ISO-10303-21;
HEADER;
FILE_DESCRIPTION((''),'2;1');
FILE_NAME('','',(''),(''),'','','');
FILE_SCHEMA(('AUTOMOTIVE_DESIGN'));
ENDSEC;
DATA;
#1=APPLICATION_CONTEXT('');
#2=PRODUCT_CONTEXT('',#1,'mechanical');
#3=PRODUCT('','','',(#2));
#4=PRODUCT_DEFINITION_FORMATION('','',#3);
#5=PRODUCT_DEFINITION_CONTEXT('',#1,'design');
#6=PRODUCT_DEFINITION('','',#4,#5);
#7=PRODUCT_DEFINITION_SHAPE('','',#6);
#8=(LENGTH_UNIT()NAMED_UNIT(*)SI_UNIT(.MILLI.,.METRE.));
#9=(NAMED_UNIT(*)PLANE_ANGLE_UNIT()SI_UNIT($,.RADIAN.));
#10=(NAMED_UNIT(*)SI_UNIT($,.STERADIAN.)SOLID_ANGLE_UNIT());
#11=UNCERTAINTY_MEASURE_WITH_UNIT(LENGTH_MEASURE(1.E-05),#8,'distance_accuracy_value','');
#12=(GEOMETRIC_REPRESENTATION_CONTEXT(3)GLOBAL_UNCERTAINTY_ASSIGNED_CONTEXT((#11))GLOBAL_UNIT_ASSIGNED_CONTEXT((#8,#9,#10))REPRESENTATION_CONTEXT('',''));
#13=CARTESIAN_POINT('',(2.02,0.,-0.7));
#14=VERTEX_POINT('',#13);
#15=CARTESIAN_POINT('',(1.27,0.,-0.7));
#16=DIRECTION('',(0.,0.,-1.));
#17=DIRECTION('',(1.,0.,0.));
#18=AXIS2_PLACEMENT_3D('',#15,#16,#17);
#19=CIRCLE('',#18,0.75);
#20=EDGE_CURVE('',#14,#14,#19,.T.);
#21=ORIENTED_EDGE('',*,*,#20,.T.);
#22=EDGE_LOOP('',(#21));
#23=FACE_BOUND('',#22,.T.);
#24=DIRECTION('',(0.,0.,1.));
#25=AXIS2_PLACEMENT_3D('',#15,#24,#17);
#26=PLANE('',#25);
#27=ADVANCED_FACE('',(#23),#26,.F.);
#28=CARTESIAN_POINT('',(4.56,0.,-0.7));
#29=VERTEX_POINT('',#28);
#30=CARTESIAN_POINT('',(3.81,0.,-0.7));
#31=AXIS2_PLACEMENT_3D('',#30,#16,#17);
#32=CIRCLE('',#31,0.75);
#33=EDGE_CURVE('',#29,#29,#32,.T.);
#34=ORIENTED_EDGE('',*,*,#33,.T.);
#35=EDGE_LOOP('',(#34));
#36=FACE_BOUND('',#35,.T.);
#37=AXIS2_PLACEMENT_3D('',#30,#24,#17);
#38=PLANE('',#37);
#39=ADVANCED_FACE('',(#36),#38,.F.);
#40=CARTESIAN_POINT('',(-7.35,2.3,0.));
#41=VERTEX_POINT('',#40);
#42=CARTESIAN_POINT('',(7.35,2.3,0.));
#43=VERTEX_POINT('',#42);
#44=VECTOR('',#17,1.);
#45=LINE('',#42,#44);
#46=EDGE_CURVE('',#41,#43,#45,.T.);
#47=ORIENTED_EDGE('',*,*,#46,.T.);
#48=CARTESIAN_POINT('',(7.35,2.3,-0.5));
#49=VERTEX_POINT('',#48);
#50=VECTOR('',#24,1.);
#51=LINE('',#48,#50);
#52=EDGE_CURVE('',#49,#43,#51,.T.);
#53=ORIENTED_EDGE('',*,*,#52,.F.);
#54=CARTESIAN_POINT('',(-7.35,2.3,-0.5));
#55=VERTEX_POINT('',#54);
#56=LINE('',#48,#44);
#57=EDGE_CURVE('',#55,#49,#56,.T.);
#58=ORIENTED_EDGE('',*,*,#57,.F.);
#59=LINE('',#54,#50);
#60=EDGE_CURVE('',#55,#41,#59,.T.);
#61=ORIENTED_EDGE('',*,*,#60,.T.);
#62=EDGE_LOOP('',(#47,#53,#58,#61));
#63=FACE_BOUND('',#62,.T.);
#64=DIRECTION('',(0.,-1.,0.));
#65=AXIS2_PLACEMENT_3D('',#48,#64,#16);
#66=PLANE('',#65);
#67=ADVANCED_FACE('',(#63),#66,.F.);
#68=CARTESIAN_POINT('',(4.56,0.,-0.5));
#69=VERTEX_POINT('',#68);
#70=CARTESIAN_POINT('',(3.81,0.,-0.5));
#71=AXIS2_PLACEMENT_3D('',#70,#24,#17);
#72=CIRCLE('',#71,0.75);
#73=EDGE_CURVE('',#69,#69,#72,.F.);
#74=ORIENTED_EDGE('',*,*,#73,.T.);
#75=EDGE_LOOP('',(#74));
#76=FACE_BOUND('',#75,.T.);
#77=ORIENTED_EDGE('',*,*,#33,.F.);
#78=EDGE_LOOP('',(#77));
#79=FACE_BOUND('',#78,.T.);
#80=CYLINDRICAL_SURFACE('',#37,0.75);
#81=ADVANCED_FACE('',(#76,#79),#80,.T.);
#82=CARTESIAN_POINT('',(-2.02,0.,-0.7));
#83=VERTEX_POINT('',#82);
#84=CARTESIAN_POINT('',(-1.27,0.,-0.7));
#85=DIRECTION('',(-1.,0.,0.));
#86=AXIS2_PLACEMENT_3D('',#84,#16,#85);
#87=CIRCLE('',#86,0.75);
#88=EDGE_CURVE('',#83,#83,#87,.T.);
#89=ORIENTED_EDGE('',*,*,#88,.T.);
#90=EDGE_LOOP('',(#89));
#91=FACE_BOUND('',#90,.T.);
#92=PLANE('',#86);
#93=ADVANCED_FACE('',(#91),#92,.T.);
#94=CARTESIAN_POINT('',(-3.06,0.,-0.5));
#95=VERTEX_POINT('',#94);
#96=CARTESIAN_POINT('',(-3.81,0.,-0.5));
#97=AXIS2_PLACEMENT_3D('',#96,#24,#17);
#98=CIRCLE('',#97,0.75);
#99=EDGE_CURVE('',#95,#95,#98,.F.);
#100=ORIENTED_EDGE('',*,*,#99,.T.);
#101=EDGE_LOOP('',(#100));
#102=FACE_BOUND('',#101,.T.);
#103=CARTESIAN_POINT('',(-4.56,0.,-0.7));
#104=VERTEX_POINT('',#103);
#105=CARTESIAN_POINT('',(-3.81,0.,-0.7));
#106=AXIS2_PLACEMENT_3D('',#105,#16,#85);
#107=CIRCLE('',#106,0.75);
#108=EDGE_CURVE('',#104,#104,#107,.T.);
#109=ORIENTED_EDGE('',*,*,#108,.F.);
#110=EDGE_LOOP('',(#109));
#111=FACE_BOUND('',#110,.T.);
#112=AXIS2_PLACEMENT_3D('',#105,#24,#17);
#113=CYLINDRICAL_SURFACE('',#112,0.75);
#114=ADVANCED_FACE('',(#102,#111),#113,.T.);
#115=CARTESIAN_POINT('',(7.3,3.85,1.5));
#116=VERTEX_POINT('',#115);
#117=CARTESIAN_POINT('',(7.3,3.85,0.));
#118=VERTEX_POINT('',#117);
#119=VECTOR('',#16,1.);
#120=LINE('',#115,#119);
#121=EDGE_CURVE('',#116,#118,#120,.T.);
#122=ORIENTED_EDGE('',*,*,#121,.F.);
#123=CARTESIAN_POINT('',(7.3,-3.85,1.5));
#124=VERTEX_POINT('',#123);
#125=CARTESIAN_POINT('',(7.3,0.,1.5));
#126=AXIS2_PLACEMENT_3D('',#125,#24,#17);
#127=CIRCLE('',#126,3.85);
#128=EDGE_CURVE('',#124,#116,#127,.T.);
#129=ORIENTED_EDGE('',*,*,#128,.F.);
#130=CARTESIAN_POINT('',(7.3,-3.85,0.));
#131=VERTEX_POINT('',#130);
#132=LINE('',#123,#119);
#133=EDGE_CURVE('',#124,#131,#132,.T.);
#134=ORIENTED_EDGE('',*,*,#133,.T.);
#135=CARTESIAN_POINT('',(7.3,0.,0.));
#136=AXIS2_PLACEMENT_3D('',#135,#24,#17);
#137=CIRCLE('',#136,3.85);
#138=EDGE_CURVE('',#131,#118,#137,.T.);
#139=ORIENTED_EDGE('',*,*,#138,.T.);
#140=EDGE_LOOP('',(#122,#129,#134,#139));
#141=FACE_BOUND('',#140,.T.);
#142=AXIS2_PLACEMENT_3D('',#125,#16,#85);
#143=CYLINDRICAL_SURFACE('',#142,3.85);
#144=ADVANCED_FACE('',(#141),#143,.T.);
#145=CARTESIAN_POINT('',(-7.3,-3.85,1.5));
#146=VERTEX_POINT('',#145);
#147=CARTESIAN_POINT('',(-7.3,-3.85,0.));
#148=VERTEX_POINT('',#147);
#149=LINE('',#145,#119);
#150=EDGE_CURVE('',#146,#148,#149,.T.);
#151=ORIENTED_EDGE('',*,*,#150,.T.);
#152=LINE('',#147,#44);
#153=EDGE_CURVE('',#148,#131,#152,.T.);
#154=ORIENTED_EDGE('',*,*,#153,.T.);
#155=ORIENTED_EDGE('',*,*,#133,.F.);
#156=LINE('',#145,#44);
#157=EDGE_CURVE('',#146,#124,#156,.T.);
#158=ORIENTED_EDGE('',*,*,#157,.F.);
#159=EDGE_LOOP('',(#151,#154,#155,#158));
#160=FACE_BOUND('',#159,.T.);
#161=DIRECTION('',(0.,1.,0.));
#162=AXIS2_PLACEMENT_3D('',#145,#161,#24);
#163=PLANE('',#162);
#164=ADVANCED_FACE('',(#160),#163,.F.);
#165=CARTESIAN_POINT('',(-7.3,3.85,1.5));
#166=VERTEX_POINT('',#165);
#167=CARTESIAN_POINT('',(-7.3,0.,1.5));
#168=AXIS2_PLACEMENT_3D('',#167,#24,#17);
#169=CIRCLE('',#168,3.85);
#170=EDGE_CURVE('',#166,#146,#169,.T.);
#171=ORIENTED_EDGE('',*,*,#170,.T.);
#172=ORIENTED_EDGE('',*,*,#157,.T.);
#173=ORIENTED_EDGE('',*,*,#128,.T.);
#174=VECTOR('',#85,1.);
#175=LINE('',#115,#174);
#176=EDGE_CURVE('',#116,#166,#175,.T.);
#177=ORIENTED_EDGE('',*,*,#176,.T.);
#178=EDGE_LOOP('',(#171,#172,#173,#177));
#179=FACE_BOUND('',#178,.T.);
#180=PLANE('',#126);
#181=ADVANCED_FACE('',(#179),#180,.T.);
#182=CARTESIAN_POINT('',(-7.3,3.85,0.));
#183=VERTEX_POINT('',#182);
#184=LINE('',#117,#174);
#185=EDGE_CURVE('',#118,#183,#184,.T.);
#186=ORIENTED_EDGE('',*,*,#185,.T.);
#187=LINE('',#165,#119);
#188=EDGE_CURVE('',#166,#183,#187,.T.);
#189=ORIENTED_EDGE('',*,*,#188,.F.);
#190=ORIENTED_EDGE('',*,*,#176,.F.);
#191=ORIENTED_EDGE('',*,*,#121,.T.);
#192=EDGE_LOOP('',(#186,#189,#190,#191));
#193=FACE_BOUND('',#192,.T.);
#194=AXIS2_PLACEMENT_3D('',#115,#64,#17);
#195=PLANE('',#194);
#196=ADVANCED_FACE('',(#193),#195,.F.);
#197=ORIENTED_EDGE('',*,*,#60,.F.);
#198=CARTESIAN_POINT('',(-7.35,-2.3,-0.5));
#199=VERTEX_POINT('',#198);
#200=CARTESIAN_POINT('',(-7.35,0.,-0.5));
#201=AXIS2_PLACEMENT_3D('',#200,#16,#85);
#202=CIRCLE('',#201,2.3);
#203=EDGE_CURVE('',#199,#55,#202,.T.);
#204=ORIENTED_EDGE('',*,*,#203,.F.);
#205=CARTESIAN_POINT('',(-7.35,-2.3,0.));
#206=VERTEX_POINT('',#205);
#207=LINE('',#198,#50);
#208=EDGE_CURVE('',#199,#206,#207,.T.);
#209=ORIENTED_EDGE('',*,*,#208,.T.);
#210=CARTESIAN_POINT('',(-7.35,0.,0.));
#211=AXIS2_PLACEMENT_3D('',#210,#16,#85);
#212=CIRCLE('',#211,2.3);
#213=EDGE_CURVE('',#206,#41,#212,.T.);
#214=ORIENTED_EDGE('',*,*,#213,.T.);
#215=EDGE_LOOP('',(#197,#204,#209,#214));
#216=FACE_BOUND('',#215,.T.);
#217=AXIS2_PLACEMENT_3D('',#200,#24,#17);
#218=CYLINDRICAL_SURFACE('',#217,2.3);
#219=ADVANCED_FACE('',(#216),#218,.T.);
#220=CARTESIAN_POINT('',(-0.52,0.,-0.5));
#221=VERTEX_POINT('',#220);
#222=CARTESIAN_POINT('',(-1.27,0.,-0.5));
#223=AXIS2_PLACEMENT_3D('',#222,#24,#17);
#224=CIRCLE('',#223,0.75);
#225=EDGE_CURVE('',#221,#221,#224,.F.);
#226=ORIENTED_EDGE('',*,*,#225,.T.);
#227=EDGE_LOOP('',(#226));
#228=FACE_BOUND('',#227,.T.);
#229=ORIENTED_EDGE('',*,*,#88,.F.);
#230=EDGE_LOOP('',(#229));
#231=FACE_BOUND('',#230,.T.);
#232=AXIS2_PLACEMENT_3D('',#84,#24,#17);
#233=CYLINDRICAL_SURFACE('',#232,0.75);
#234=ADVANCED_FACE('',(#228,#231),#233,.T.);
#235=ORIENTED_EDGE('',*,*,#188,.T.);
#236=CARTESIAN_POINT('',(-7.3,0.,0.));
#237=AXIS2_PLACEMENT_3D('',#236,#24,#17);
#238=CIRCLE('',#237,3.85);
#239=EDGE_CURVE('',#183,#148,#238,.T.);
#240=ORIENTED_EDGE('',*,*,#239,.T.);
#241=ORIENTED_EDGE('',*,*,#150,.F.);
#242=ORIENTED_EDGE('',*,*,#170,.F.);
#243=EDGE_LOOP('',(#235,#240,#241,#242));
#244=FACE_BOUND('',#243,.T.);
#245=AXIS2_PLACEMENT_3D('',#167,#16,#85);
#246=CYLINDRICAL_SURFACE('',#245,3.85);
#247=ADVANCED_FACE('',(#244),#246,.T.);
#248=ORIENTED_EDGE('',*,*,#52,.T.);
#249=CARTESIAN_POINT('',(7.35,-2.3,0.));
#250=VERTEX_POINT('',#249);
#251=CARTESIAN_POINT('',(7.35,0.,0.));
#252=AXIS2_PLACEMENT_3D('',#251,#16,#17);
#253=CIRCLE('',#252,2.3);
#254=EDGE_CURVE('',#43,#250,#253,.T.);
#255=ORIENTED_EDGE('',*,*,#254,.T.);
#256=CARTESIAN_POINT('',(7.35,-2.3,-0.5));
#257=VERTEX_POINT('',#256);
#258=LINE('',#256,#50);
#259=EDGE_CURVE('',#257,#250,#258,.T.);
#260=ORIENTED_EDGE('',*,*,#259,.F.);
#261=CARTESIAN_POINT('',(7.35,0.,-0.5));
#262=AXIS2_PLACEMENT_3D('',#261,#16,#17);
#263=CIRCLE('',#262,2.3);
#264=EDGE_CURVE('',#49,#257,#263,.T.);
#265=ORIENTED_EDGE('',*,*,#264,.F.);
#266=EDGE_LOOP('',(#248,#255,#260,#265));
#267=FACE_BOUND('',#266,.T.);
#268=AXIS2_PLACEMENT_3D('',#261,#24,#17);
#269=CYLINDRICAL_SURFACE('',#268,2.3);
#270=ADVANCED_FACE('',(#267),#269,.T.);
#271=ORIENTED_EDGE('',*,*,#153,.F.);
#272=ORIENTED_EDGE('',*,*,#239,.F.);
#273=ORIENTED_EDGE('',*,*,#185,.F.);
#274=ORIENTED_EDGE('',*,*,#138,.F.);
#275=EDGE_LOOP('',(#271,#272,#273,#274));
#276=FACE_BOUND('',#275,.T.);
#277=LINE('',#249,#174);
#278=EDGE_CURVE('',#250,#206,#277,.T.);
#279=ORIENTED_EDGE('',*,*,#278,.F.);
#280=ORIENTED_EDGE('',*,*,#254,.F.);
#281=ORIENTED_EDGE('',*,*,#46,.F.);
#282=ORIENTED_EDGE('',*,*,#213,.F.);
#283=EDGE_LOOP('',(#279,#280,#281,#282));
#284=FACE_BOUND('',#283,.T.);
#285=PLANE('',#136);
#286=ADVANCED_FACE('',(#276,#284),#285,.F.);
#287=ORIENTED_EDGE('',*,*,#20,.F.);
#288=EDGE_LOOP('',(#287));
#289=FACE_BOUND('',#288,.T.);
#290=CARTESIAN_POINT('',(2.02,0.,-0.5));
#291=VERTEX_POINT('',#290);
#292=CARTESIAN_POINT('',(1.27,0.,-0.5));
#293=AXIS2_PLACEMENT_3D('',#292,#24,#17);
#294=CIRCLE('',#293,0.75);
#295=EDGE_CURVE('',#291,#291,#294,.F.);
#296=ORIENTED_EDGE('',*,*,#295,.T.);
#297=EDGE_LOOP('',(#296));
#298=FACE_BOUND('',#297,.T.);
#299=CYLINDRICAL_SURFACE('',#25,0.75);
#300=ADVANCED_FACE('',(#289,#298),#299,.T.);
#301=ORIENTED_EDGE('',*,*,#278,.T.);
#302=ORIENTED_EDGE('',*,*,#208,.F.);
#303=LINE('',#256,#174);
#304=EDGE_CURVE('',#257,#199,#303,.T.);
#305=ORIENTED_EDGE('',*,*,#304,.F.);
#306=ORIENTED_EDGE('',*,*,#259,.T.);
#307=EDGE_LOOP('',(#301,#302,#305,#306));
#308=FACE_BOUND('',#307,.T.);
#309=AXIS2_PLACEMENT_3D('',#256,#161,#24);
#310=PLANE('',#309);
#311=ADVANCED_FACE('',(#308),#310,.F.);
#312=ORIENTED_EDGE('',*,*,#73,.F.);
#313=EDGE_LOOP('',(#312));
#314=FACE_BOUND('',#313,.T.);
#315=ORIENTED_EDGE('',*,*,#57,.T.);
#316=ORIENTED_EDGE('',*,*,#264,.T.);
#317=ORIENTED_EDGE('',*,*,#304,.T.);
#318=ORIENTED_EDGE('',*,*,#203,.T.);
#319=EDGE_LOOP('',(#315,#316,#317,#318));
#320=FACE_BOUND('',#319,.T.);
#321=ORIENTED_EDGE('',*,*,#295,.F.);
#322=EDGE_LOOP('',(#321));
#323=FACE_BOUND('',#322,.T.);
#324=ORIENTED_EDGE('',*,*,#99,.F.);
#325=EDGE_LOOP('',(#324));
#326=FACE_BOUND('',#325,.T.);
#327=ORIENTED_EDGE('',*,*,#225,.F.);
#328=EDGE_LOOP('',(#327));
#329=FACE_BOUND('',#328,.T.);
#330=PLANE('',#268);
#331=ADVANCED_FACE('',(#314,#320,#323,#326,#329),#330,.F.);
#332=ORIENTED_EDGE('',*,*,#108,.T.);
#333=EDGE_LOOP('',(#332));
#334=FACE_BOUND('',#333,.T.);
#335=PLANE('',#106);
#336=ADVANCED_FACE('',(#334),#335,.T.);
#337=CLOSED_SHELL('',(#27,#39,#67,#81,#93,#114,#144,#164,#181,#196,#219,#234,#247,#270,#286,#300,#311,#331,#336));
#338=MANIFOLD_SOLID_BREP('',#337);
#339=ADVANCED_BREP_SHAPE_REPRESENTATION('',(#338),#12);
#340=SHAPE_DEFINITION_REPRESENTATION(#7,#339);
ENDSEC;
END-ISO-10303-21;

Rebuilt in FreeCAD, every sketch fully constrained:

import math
import FreeCAD as App
import Part
import Sketcher
Q = App.Units.Quantity

doc = App.newDocument("Part")
params = doc.addObject("Spreadsheet::Sheet", "Params")
for row, (alias, value) in enumerate([
    ("sketch1_radius", "3.85 mm"),
    ("sketch1_width", "14.6 mm"),
    ("pad1_length", "1.5 mm"),
    ("sketch2_radius", "2.3 mm"),
    ("sketch2_width", "14.7 mm"),
    ("pad2_length", "0.5 mm"),
    ("sketch3_diameter", "1.5 mm"),
    ("pad3_length", "0.2 mm"),
], start=1):
    params.set(f"A{row}", alias)
    params.set(f"B{row}", "=" + value)
    params.setAlias(f"B{row}", alias)

body = doc.addObject("PartDesign::Body", "Body")

sketch1 = body.newObject("Sketcher::SketchObject", "Sketch")
sketch1.AttachmentSupport = (doc.getObject("XY_Plane"), [""])
sketch1.MapMode = "FlatFace"
sketch1.addGeometry(Part.LineSegment(App.Vector(7.3, 3.9, 0), App.Vector(-7.3, 3.9, 0)), False)
sketch1.addGeometry(Part.ArcOfCircle(Part.Circle(App.Vector(-7.3, 0, 0), App.Vector(0, 0, 1), 3.9), math.radians(90), math.radians(270)), False)
sketch1.addGeometry(Part.LineSegment(App.Vector(-7.3, -3.9, 0), App.Vector(7.3, -3.9, 0)), False)
sketch1.addGeometry(Part.ArcOfCircle(Part.Circle(App.Vector(7.3, 0, 0), App.Vector(0, 0, 1), 3.9), math.radians(-90), math.radians(90)), False)
sketch1.addConstraint(Sketcher.Constraint("Tangent", 0, 2, 1, 1))
sketch1.addConstraint(Sketcher.Constraint("Tangent", 1, 2, 2, 1))
sketch1.addConstraint(Sketcher.Constraint("Tangent", 2, 2, 3, 1))
sketch1.addConstraint(Sketcher.Constraint("Tangent", 3, 2, 0, 1))
sketch1.addConstraint(Sketcher.Constraint("Horizontal", 0))
sketch1.addConstraint(Sketcher.Constraint("Horizontal", 2))
sketch1.addConstraint(Sketcher.Constraint("Symmetric", 1, 3, 3, 3, -1, 1))
sketch1.addConstraint(Sketcher.Constraint("Radius", 1, Q("3.85 mm")))
sketch1.addConstraint(Sketcher.Constraint("DistanceX", 0, 2, 0, 1, Q("14.6 mm")))
sketch1.setExpression("Constraints[7]", "Params.sketch1_radius")
sketch1.setExpression("Constraints[8]", "Params.sketch1_width")
pad1 = body.newObject("PartDesign::Pad", "Pad")
pad1.Profile = sketch1
pad1.setExpression("Length", "Params.pad1_length")

sketch2 = body.newObject("Sketcher::SketchObject", "Sketch001")
sketch2.AttachmentSupport = (doc.getObject("XY_Plane"), [""])
sketch2.MapMode = "FlatFace"
sketch2.addGeometry(Part.LineSegment(App.Vector(-7.3, 2.3, 0), App.Vector(7.3, 2.3, 0)), False)
sketch2.addGeometry(Part.ArcOfCircle(Part.Circle(App.Vector(7.3, 0, 0), App.Vector(0, 0, 1), 2.3), math.radians(-90), math.radians(90)), False)
sketch2.addGeometry(Part.LineSegment(App.Vector(7.3, -2.3, 0), App.Vector(-7.3, -2.3, 0)), False)
sketch2.addGeometry(Part.ArcOfCircle(Part.Circle(App.Vector(-7.3, 0, 0), App.Vector(0, 0, 1), 2.3), math.radians(90), math.radians(270)), False)
sketch2.addConstraint(Sketcher.Constraint("Tangent", 0, 2, 1, 2))
sketch2.addConstraint(Sketcher.Constraint("Tangent", 1, 1, 2, 1))
sketch2.addConstraint(Sketcher.Constraint("Tangent", 2, 2, 3, 2))
sketch2.addConstraint(Sketcher.Constraint("Tangent", 3, 1, 0, 1))
sketch2.addConstraint(Sketcher.Constraint("Horizontal", 0))
sketch2.addConstraint(Sketcher.Constraint("Horizontal", 2))
sketch2.addConstraint(Sketcher.Constraint("Symmetric", 1, 3, 3, 3, -1, 1))
sketch2.addConstraint(Sketcher.Constraint("Radius", 1, Q("2.3 mm")))
sketch2.addConstraint(Sketcher.Constraint("DistanceX", 0, 1, 0, 2, Q("14.7 mm")))
sketch2.setExpression("Constraints[7]", "Params.sketch2_radius")
sketch2.setExpression("Constraints[8]", "Params.sketch2_width")
pad2 = body.newObject("PartDesign::Pad", "Pad001")
pad2.Profile = sketch2
pad2.setExpression("Length", "Params.pad2_length")
pad2.Reversed = True

sketch3 = body.newObject("Sketcher::SketchObject", "Sketch002")
sketch3.AttachmentSupport = (doc.getObject("XY_Plane"), [""])
sketch3.MapMode = "FlatFace"
sketch3.AttachmentOffset = App.Placement(App.Vector(0, 0, -0.5), App.Rotation())
sketch3.addGeometry(Part.Circle(App.Vector(-1.3, 0, 0), App.Vector(0, 0, 1), 0.8), False)
sketch3.addGeometry(Part.Circle(App.Vector(-3.8, 0, 0), App.Vector(0, 0, 1), 0.8), False)
sketch3.addGeometry(Part.Circle(App.Vector(3.8, 0, 0), App.Vector(0, 0, 1), 0.8), False)
sketch3.addGeometry(Part.Circle(App.Vector(1.3, 0, 0), App.Vector(0, 0, 1), 0.8), False)
sketch3.addConstraint(Sketcher.Constraint("Equal", 0, 1))
sketch3.addConstraint(Sketcher.Constraint("Equal", 1, 2))
sketch3.addConstraint(Sketcher.Constraint("Equal", 2, 3))
sketch3.addConstraint(Sketcher.Constraint("Symmetric", 1, 3, 2, 3, -1, 1))
sketch3.addConstraint(Sketcher.Constraint("Symmetric", 0, 3, 3, 3, -1, 1))
sketch3.addConstraint(Sketcher.Constraint("PointOnObject", 0, 3, -1))
sketch3.addConstraint(Sketcher.Constraint("PointOnObject", 1, 3, -1))
sketch3.addConstraint(Sketcher.Constraint("Diameter", 0, Q("1.5 mm")))
sketch3.addConstraint(Sketcher.Constraint("DistanceX", 0, 3, -1, 1, Q("1.27 mm")))
sketch3.addConstraint(Sketcher.Constraint("DistanceX", 1, 3, -1, 1, Q("3.81 mm")))
sketch3.setExpression("Constraints[7]", "Params.sketch3_diameter")
pad3 = body.newObject("PartDesign::Pad", "Pad002")
pad3.Profile = sketch3
pad3.setExpression("Length", "Params.pad3_length")
pad3.Reversed = True

doc.recompute()
